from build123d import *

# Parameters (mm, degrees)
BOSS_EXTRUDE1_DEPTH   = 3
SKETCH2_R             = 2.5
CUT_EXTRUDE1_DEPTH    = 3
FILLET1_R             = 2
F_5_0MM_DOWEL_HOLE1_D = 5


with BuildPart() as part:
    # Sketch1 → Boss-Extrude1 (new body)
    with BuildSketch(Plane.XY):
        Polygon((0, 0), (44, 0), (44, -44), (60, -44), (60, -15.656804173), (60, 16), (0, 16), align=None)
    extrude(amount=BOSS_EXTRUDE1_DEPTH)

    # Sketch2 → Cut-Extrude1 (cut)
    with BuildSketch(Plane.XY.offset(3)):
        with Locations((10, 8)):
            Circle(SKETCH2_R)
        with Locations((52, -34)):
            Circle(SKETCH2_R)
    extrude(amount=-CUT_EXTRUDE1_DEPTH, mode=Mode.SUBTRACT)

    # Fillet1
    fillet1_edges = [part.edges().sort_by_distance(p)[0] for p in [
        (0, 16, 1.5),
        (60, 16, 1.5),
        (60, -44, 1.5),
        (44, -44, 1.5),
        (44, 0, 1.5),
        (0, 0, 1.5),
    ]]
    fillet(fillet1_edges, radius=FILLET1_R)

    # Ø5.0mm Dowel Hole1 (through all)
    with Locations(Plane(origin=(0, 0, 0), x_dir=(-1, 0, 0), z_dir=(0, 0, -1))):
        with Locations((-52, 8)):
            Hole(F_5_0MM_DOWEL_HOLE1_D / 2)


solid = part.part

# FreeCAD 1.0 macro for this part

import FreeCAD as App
import Part
import Sketcher

V = App.Vector
Q = App.Units.Quantity


def edges_at(feature, points):
    """Names of the edges that pass closest to the given points."""
    edges = feature.Shape.Edges
    near = lambda p: min(range(len(edges)), key=lambda i: edges[i].distToShape(Part.Vertex(*p))[0])
    return sorted({f"Edge{near(p) + 1}" for p in points})

doc = App.newDocument("Part")
body = doc.addObject("PartDesign::Body", "Body")

# Sketch on XY plane
sketch1 = body.newObject("Sketcher::SketchObject", "Sketch")
sketch1.AttachmentSupport = (doc.getObject("XY_Plane"), [""])
sketch1.MapMode = "FlatFace"
sketch1.addGeometry([
    Part.LineSegment(V(0, 0, 0), V(44, 0, 0)),  # 0
    Part.LineSegment(V(44, 0, 0), V(44, -44, 0)),  # 1
    Part.LineSegment(V(44, -44, 0), V(60, -44, 0)),  # 2
    Part.LineSegment(V(60, -44, 0), V(60, 16, 0)),  # 3
    Part.LineSegment(V(60, 16, 0), V(0, 16, 0)),  # 4
    Part.LineSegment(V(0, 16, 0), V(0, 0, 0)),  # 5
], False)
sketch1.addConstraint([
    Sketcher.Constraint("Coincident", 0, 2, 1, 1),
    Sketcher.Constraint("Coincident", 1, 2, 2, 1),
    Sketcher.Constraint("Coincident", 2, 2, 3, 1),
    Sketcher.Constraint("Coincident", 3, 2, 4, 1),
    Sketcher.Constraint("Coincident", 4, 2, 5, 1),
    Sketcher.Constraint("Coincident", 5, 2, 0, 1),
    Sketcher.Constraint("Horizontal", 0),
    Sketcher.Constraint("Vertical", 1),
    Sketcher.Constraint("Horizontal", 2),
    Sketcher.Constraint("Vertical", 3),
    Sketcher.Constraint("Horizontal", 4),
    Sketcher.Constraint("Vertical", 5),
    Sketcher.Constraint("Coincident", 5, 2, -1, 1),
    Sketcher.Constraint("Equal", 0, 1),
    Sketcher.Constraint("Equal", 4, 3),
    Sketcher.Constraint("DistanceX", 0, 1, 0, 2, Q("44 mm")),
    Sketcher.Constraint("DistanceX", 2, 1, 2, 2, Q("16 mm")),
])
pad1 = body.newObject("PartDesign::Pad", "Pad")
pad1.Profile = sketch1
pad1.Length = 3

# Sketch on XY plane
sketch2 = body.newObject("Sketcher::SketchObject", "Sketch001")
sketch2.AttachmentSupport = (doc.getObject("XY_Plane"), [""])
sketch2.MapMode = "FlatFace"
sketch2.AttachmentOffset = App.Placement(V(0, 0, 3), App.Rotation())
sketch2.addGeometry([
    Part.Circle(V(10, 8, 0), V(0, 0, 1), 2.5),
    Part.Circle(V(52, -34, 0), V(0, 0, 1), 2.5),
], False)
sketch2.addConstraint([
    Sketcher.Constraint("Equal", 0, 1),
    Sketcher.Constraint("Diameter", 0, Q("5 mm")),
    Sketcher.Constraint("DistanceX", -1, 1, 0, 3, Q("10 mm")),
    Sketcher.Constraint("DistanceY", -1, 1, 0, 3, Q("8 mm")),
    Sketcher.Constraint("DistanceX", -1, 1, 1, 3, Q("52 mm")),
    Sketcher.Constraint("DistanceY", 1, 3, -1, 1, Q("34 mm")),
])
pocket1 = body.newObject("PartDesign::Pocket", "Pocket")
pocket1.Profile = sketch2
pocket1.Length = 3
doc.recompute()

fillet = body.newObject("PartDesign::Fillet", "Fillet")
fillet.Base = (pocket1, edges_at(pocket1, [
    (0, 16, 1.5),
    (60, 16, 1.5),
    (60, -44, 1.5),
    (44, -44, 1.5),
    (44, 0, 1.5),
    (0, 0, 1.5),
]))
fillet.Radius = 2

# Sketch on XY plane
sketch3 = body.newObject("Sketcher::SketchObject", "Sketch002")
sketch3.AttachmentSupport = (doc.getObject("XY_Plane"), [""])
sketch3.MapMode = "FlatFace"
sketch3.addGeometry(Part.Circle(V(52, 8, 0), V(0, 0, 1), 2.5), False)
sketch3.addConstraint([
    Sketcher.Constraint("Diameter", 0, Q("5 mm")),
    Sketcher.Constraint("DistanceX", -1, 1, 0, 3, Q("52 mm")),
    Sketcher.Constraint("DistanceY", -1, 1, 0, 3, Q("8 mm")),
])
doc.recompute()
hole = body.newObject("PartDesign::Hole", "Hole")
hole.Profile = sketch3
hole.ThreadType = "None"
hole.Diameter = 5
hole.DepthType = "ThroughAll"
hole.Reversed = True

doc.recompute()
